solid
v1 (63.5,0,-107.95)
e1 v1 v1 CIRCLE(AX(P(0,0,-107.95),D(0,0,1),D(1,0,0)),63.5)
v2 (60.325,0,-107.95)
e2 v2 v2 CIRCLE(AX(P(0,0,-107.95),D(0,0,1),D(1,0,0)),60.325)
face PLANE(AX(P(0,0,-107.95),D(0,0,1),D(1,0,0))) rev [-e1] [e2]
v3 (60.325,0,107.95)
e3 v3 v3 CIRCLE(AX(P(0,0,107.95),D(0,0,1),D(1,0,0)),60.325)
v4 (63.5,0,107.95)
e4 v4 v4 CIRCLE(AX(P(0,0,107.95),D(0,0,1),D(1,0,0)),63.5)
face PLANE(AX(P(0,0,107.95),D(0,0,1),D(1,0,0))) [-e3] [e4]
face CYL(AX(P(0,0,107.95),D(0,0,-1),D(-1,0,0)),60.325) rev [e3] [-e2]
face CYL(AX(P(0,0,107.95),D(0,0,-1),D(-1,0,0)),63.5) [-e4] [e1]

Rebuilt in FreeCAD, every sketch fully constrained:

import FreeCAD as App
import Part
import Sketcher

V = App.Vector
Q = App.Units.Quantity

doc = App.newDocument("Part")
body = doc.addObject("PartDesign::Body", "Body")

# Sketch on XY plane
sketch1 = body.newObject("Sketcher::SketchObject", "Sketch")
sketch1.AttachmentSupport = (doc.getObject("XY_Plane"), [""])
sketch1.MapMode = "FlatFace"
sketch1.addGeometry([
    Part.Circle(V(0, 0, 0), V(0, 0, 1), 64),
    Part.Circle(V(0, 0, 0), V(0, 0, 1), 60),
], False)
sketch1.addConstraint([
    Sketcher.Constraint("Coincident", 0, 3, -1, 1),
    Sketcher.Constraint("Coincident", 1, 3, -1, 1),
    Sketcher.Constraint("Diameter", 0, Q("5 in")),
    Sketcher.Constraint("Diameter", 1, Q("4.75 in")),
])
pad1 = body.newObject("PartDesign::Pad", "Pad")
pad1.Profile = sketch1
pad1.Length = Q("8.5 in")
pad1.Midplane = True

doc.recompute()
